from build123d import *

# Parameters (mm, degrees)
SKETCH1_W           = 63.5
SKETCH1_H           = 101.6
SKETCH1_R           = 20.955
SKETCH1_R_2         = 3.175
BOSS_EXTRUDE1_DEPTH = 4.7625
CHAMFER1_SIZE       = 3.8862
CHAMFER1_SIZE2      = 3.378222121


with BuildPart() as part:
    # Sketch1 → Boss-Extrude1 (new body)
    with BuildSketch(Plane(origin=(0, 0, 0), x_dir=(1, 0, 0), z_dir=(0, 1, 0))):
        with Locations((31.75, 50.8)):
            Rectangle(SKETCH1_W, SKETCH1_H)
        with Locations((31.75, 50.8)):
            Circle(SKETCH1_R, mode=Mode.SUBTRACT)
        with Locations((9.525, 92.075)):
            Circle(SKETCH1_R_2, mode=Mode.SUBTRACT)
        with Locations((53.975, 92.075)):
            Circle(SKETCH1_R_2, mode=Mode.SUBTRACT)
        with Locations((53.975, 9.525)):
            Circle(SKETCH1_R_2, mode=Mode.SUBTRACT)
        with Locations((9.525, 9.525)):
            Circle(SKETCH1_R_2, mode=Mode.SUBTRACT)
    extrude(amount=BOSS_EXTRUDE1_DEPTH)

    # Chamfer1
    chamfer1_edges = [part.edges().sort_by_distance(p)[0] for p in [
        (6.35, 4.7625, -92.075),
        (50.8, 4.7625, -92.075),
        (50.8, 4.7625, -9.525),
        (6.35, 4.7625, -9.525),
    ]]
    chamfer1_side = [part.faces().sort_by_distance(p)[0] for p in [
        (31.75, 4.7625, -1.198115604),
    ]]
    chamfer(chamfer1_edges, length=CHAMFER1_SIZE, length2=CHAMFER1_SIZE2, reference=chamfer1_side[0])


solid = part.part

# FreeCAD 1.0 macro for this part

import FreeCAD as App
import Part
import Sketcher
Q = App.Units.Quantity


def edges_at(feature, points):
    """Names of the edges that pass closest to the given points."""
    edges = feature.Shape.Edges
    near = lambda p: min(range(len(edges)), key=lambda i: edges[i].distToShape(Part.Vertex(*p))[0])
    return sorted({f"Edge{near(p) + 1}" for p in points})


def add_polygon(sketch, points):
    """Adds a closed chain of lines whose ends are joined by coincident constraints."""
    first, n = sketch.GeometryCount, len(points)
    for a, b in zip(points, points[1:] + points[:1]):
        sketch.addGeometry(Part.LineSegment(App.Vector(*a, 0), App.Vector(*b, 0)), False)
    for i in range(n):
        sketch.addConstraint(Sketcher.Constraint("Coincident", first + i, 2, first + (i + 1) % n, 1))

doc = App.newDocument("Part")
params = doc.addObject("Spreadsheet::Sheet", "Params")
for row, (alias, value) in enumerate([
    ("sketch1_diameter", "0.25 in"),
    ("sketch1_diameter2", "1.65 in"),
    ("sketch1_height", "4 in"),
    ("sketch1_width", "2.5 in"),
    ("pad1_length", "0.1875 in"),
    ("chamfer_size", "0.153 in"),
    ("chamfer_size2", "3.378222 mm"),
], start=1):
    params.set(f"A{row}", alias)
    params.set(f"B{row}", "=" + value)
    params.setAlias(f"B{row}", alias)

body = doc.addObject("PartDesign::Body", "Body")

sketch1 = body.newObject("Sketcher::SketchObject", "Sketch")
sketch1.AttachmentSupport = (doc.getObject("XZ_Plane"), [""])
sketch1.MapMode = "FlatFace"
add_polygon(sketch1, [(0, -101.6), (0, 0), (63.5, 0), (63.5, -101.6)])
sketch1.addGeometry(Part.Circle(App.Vector(9.5, -9.5, 0), App.Vector(0, 0, 1), 3.2), False)
sketch1.addGeometry(Part.Circle(App.Vector(54, -9.5, 0), App.Vector(0, 0, 1), 3.2), False)
sketch1.addGeometry(Part.Circle(App.Vector(9.5, -92.1, 0), App.Vector(0, 0, 1), 3.2), False)
sketch1.addGeometry(Part.Circle(App.Vector(31.8, -50.8, 0), App.Vector(0, 0, 1), 21), False)
sketch1.addGeometry(Part.Circle(App.Vector(54, -92.1, 0), App.Vector(0, 0, 1), 3.2), False)
sketch1.addConstraint(Sketcher.Constraint("Vertical", 0))
sketch1.addConstraint(Sketcher.Constraint("Horizontal", 1))
sketch1.addConstraint(Sketcher.Constraint("Vertical", 2))
sketch1.addConstraint(Sketcher.Constraint("Horizontal", 3))
sketch1.addConstraint(Sketcher.Constraint("Coincident", 0, 2, -1, 1))
sketch1.addConstraint(Sketcher.Constraint("Equal", 4, 5))
sketch1.addConstraint(Sketcher.Constraint("Equal", 5, 6))
sketch1.addConstraint(Sketcher.Constraint("Equal", 6, 8))
sketch1.addConstraint(Sketcher.Constraint("Horizontal", 4, 3, 5, 3))
sketch1.addConstraint(Sketcher.Constraint("Horizontal", 6, 3, 8, 3))
sketch1.addConstraint(Sketcher.Constraint("Vertical", 4, 3, 6, 3))
sketch1.addConstraint(Sketcher.Constraint("Vertical", 5, 3, 8, 3))
sketch1.addConstraint(Sketcher.Constraint("Diameter", 4, Q("0.25 in")))
sketch1.addConstraint(Sketcher.Constraint("Diameter", 7, Q("1.65 in")))
sketch1.addConstraint(Sketcher.Constraint("DistanceY", 0, 1, 0, 2, Q("4 in")))
sketch1.addConstraint(Sketcher.Constraint("DistanceX", 1, 1, 1, 2, Q("2.5 in")))
sketch1.addConstraint(Sketcher.Constraint("DistanceY", 7, 3, -1, 1, Q("2 in")))
sketch1.addConstraint(Sketcher.Constraint("DistanceX", -1, 1, 7, 3, Q("1.25 in")))
sketch1.addConstraint(Sketcher.Constraint("DistanceX", 4, 3, 5, 3, Q("1.75 in")))
sketch1.addConstraint(Sketcher.Constraint("DistanceY", 6, 3, 4, 3, Q("3.25 in")))
sketch1.addConstraint(Sketcher.Constraint("DistanceX", -1, 1, 4, 3, Q("0.375 in")))
sketch1.addConstraint(Sketcher.Constraint("DistanceY", 4, 3, -1, 1, Q("0.375 in")))
sketch1.setExpression("Constraints[16]", "Params.sketch1_diameter")
sketch1.setExpression("Constraints[17]", "Params.sketch1_diameter2")
sketch1.setExpression("Constraints[18]", "Params.sketch1_height")
sketch1.setExpression("Constraints[19]", "Params.sketch1_width")
pad1 = body.newObject("PartDesign::Pad", "Pad")
pad1.Profile = sketch1
pad1.setExpression("Length", "Params.pad1_length")
pad1.Reversed = True
doc.recompute()

chamfer = body.newObject("PartDesign::Chamfer", "Chamfer")
chamfer.Base = (pad1, edges_at(pad1, [
    (6.35, 4.763, -92.075),
    (50.8, 4.763, -92.075),
    (50.8, 4.763, -9.525),
    (6.35, 4.763, -9.525),
]))
chamfer.ChamferType = "Two distances"
chamfer.setExpression("Size", "Params.chamfer_size")
chamfer.setExpression("Size2", "Params.chamfer_size2")
chamfer.FlipDirection = True

doc.recompute()
